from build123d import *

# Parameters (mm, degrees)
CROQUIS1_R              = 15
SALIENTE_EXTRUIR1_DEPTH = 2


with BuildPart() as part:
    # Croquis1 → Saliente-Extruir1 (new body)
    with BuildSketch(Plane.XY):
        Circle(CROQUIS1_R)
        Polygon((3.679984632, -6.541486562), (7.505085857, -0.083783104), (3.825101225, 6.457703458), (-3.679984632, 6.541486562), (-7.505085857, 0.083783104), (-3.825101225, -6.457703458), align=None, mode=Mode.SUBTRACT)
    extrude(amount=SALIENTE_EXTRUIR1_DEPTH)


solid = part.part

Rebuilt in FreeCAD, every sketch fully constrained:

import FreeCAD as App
import Part
import Sketcher
from FreeCAD import Vector
Q = App.Units.Quantity

doc = App.newDocument("Part")
body = doc.addObject("PartDesign::Body", "Body")

sketch1 = body.newObject("Sketcher::SketchObject", "Sketch")
sketch1.AttachmentSupport = (doc.getObject("XY_Plane"), [""])
sketch1.MapMode = "FlatFace"
sketch1.addGeometry([
    Part.Circle(Vector(0, 0, 0), Vector(0, 0, 1), 15),
    Part.LineSegment(Vector(8, 0, 0), Vector(4, -7, 0)),
    Part.LineSegment(Vector(4, -7, 0), Vector(-4, -6, 0)),
    Part.LineSegment(Vector(-4, -6, 0), Vector(-8, 0, 0)),
    Part.LineSegment(Vector(-8, 0, 0), Vector(-4, 7, 0)),
    Part.LineSegment(Vector(-4, 7, 0), Vector(4, 6, 0)),
    Part.LineSegment(Vector(4, 6, 0), Vector(8, 0, 0)),
], False)
sketch1.addConstraint([
    Sketcher.Constraint("Coincident", 1, 2, 2, 1),
    Sketcher.Constraint("Coincident", 2, 2, 3, 1),
    Sketcher.Constraint("Coincident", 3, 2, 4, 1),
    Sketcher.Constraint("Coincident", 4, 2, 5, 1),
    Sketcher.Constraint("Coincident", 5, 2, 6, 1),
    Sketcher.Constraint("Coincident", 6, 2, 1, 1),
    Sketcher.Constraint("Coincident", 0, 3, -1, 1),
    Sketcher.Constraint("Symmetric", 1, 2, 4, 2, -1, 1),
    Sketcher.Constraint("Symmetric", 2, 2, 5, 2, -1, 1),
    Sketcher.Constraint("Symmetric", 3, 2, 6, 2, -1, 1),
    Sketcher.Constraint("Equal", 1, 2),
    Sketcher.Constraint("Equal", 2, 3),
    Sketcher.Constraint("Diameter", 0, Q("30 mm")),
    Sketcher.Constraint("DistanceX", 2, 2, -1, 1, Q("3.825101 mm")),
    Sketcher.Constraint("DistanceX", 3, 2, 4, 2, Q("3.825101 mm")),
    Sketcher.Constraint("DistanceX", 3, 2, 1, 2, Q("11.18507 mm")),
    Sketcher.Constraint("DistanceY", 1, 2, 3, 2, Q("6.62527 mm")),
])
pad1 = body.newObject("PartDesign::Pad", "Pad")
pad1.Profile = sketch1
pad1.Length = 2

doc.recompute()
